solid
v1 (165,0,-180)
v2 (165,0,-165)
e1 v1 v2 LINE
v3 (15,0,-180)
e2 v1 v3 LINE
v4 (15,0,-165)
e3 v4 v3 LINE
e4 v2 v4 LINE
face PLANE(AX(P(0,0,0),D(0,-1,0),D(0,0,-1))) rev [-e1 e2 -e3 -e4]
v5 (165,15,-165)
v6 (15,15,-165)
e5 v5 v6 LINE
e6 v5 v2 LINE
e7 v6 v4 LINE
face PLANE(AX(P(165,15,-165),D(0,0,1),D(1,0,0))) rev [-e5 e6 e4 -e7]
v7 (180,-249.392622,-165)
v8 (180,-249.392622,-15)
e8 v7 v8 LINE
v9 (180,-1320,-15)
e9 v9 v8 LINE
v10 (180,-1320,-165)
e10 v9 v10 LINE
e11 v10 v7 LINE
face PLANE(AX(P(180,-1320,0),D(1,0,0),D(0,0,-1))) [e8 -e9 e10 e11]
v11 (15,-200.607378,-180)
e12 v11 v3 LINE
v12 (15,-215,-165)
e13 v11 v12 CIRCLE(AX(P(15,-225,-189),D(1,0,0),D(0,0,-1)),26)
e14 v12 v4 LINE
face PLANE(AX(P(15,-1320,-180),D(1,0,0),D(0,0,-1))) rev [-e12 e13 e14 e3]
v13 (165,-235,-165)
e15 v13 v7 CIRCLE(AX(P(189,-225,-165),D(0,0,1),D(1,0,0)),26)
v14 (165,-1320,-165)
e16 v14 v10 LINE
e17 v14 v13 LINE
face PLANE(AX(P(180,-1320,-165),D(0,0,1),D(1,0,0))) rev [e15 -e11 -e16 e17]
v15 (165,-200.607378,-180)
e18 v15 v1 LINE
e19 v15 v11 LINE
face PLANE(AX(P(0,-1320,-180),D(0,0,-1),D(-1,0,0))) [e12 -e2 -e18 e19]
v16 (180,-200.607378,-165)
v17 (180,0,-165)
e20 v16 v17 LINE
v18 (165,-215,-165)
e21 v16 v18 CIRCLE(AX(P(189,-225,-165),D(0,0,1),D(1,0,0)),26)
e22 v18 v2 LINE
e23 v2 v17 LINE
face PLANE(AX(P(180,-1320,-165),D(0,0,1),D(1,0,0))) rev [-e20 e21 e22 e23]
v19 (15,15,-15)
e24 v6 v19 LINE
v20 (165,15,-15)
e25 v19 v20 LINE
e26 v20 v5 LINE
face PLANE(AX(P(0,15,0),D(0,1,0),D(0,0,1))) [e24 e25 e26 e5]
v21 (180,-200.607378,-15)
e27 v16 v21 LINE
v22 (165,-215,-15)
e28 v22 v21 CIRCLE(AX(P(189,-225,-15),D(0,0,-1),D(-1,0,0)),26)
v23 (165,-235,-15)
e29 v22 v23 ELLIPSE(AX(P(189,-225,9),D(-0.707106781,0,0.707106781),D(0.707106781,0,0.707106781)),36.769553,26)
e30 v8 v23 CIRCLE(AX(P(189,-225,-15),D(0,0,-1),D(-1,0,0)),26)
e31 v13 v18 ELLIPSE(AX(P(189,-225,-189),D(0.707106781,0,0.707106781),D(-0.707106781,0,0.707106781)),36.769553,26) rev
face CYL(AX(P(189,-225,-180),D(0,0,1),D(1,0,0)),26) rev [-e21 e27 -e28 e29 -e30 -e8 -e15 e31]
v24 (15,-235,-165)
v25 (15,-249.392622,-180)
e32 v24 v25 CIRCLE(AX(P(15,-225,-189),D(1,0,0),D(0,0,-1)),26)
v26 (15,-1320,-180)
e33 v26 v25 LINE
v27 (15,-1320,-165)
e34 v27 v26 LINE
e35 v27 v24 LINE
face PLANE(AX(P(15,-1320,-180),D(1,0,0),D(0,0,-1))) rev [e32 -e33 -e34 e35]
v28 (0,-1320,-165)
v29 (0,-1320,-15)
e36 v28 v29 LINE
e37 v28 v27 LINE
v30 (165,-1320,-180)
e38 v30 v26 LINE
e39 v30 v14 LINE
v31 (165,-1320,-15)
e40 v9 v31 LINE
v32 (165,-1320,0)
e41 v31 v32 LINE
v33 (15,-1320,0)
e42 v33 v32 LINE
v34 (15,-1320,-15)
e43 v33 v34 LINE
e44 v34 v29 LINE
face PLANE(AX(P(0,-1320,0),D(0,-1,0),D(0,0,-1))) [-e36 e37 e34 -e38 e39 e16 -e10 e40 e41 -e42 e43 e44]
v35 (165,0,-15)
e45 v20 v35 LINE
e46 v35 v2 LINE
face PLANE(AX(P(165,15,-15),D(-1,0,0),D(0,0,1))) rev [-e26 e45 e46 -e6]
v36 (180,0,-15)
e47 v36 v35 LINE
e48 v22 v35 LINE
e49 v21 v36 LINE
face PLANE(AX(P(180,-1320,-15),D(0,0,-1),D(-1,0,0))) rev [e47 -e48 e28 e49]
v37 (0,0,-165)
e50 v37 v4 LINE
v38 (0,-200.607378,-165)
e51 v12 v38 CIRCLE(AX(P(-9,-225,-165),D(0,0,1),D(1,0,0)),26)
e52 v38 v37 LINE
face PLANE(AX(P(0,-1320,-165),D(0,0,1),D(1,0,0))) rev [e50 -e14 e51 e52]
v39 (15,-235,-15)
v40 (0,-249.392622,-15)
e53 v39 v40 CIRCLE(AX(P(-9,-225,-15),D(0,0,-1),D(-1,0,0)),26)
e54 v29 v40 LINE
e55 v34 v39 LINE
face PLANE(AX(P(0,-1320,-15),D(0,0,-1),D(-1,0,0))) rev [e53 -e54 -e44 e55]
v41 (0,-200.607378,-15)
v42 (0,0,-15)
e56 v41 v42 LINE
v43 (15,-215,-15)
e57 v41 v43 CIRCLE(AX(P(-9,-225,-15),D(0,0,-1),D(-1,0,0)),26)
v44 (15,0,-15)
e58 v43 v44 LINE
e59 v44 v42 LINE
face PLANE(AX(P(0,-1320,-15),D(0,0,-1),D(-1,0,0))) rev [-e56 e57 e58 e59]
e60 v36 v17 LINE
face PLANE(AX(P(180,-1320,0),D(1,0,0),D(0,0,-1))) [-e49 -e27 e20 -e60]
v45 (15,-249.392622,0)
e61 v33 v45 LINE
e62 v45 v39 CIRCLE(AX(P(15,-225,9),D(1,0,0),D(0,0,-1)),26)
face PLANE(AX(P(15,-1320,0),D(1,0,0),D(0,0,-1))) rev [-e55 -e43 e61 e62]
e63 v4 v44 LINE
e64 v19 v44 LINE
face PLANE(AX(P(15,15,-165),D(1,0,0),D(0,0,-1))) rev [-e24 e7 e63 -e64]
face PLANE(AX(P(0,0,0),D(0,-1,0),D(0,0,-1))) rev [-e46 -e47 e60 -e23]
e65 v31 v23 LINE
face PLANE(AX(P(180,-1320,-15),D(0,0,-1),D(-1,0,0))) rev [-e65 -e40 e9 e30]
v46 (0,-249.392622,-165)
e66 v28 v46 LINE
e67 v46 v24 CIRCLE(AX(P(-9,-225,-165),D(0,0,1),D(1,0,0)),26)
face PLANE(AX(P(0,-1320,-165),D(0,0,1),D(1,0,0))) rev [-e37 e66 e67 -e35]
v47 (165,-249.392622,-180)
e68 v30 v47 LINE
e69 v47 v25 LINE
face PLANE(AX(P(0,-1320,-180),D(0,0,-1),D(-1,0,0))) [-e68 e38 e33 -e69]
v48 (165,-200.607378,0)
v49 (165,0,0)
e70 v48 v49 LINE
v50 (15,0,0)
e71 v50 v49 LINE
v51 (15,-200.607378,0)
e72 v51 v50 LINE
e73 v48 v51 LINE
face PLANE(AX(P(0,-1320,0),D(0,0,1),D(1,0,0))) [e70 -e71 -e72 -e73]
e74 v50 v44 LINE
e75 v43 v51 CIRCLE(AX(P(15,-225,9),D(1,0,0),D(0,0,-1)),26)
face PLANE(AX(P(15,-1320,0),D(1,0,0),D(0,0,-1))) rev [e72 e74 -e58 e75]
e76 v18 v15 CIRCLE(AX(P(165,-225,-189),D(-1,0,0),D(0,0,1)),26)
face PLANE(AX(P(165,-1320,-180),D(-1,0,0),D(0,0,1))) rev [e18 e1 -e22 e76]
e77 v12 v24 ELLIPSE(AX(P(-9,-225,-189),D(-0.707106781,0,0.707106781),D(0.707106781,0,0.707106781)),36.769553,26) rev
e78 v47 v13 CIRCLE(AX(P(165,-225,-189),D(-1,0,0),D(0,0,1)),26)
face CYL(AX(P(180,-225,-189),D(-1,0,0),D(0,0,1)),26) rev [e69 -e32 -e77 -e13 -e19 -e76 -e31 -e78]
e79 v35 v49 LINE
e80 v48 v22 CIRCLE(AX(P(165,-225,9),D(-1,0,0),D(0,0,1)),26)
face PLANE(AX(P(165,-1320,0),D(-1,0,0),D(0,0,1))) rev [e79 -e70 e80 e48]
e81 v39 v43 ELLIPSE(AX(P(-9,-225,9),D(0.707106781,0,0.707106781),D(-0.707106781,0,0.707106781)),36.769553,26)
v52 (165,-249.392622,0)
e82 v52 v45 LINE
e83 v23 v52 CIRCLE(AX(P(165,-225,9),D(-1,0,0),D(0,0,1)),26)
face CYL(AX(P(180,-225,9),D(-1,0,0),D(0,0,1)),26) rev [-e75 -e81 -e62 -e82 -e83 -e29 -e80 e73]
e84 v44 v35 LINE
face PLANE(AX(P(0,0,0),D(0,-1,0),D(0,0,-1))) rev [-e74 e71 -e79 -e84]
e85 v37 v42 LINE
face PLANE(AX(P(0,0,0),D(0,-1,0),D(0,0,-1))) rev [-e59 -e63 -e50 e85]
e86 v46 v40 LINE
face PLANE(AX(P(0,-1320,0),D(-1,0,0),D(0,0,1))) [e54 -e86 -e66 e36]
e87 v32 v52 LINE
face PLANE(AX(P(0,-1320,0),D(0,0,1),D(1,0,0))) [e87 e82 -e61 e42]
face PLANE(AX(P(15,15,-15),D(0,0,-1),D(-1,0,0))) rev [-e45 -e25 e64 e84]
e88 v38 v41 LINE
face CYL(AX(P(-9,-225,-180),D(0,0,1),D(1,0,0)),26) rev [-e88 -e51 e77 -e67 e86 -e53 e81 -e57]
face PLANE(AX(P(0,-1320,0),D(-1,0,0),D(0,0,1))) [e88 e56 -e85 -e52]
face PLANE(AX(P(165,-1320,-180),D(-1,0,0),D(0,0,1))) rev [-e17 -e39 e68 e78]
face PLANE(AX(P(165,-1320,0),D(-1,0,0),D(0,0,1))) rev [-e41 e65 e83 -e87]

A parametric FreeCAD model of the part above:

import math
import FreeCAD as App
import Part
import Sketcher

V = App.Vector


def add_polygon(sketch, points):
    """Adds a closed chain of lines whose ends are joined by coincident constraints."""
    first, n = sketch.GeometryCount, len(points)
    for a, b in zip(points, points[1:] + points[:1]):
        sketch.addGeometry(Part.LineSegment(App.Vector(*a, 0), App.Vector(*b, 0)), False)
    for i in range(n):
        sketch.addConstraint(Sketcher.Constraint("Coincident", first + i, 2, first + (i + 1) % n, 1))

doc = App.newDocument("Part")
body = doc.addObject("PartDesign::Body", "Body")

# Sketch on XZ plane
sketch1 = body.newObject("Sketcher::SketchObject", "Sketch")
sketch1.AttachmentSupport = (doc.getObject("XZ_Plane"), [""])
sketch1.MapMode = "FlatFace"
add_polygon(sketch1, [(0, -180), (0, 0), (180, 0), (180, -180)])  # lines 0-3
sketch1.addConstraint(Sketcher.Constraint("Vertical", 0))
sketch1.addConstraint(Sketcher.Constraint("Horizontal", 1))
sketch1.addConstraint(Sketcher.Constraint("Vertical", 2))
sketch1.addConstraint(Sketcher.Constraint("Horizontal", 3))
sketch1.addConstraint(Sketcher.Constraint("Coincident", 0, 2, -1, 1))
sketch1.addConstraint(Sketcher.Constraint("Equal", 3, 0))
sketch1.addConstraint(Sketcher.Constraint("DistanceX", 1, 1, 1, 2, 180.0))
pad1 = body.newObject("PartDesign::Pad", "Pad")
pad1.Profile = sketch1
pad1.Length = 1320

# Sketch on XZ plane
sketch2 = body.newObject("Sketcher::SketchObject", "Sketch001")
sketch2.AttachmentSupport = (doc.getObject("XZ_Plane"), [""])
sketch2.MapMode = "FlatFace"
add_polygon(sketch2, [(0, -180), (0, -165), (15, -165), (15, -180)])  # lines 0-3
add_polygon(sketch2, [(0, -15), (0, 0), (15, 0), (15, -15)])  # lines 4-7
add_polygon(sketch2, [(165, -180), (165, -165), (180, -165), (180, -180)])  # lines 8-11
add_polygon(sketch2, [(165, -15), (165, 0), (180, 0), (180, -15)])  # lines 12-15
sketch2.addConstraint(Sketcher.Constraint("Vertical", 0))
sketch2.addConstraint(Sketcher.Constraint("Horizontal", 1))
sketch2.addConstraint(Sketcher.Constraint("Vertical", 2))
sketch2.addConstraint(Sketcher.Constraint("Horizontal", 3))
sketch2.addConstraint(Sketcher.Constraint("Vertical", 4))
sketch2.addConstraint(Sketcher.Constraint("Horizontal", 5))
sketch2.addConstraint(Sketcher.Constraint("Vertical", 6))
sketch2.addConstraint(Sketcher.Constraint("Horizontal", 7))
sketch2.addConstraint(Sketcher.Constraint("Vertical", 8))
sketch2.addConstraint(Sketcher.Constraint("Horizontal", 9))
sketch2.addConstraint(Sketcher.Constraint("Vertical", 10))
sketch2.addConstraint(Sketcher.Constraint("Horizontal", 11))
sketch2.addConstraint(Sketcher.Constraint("Vertical", 12))
sketch2.addConstraint(Sketcher.Constraint("Horizontal", 13))
sketch2.addConstraint(Sketcher.Constraint("Vertical", 14))
sketch2.addConstraint(Sketcher.Constraint("Horizontal", 15))
sketch2.addConstraint(Sketcher.Constraint("Coincident", 4, 2, -1, 1))
sketch2.addConstraint(Sketcher.Constraint("PointOnObject", 0, 2, -2))
sketch2.addConstraint(Sketcher.Constraint("PointOnObject", 12, 2, -1))
sketch2.addConstraint(Sketcher.Constraint("Horizontal", 1, 2, 8, 2))
sketch2.addConstraint(Sketcher.Constraint("Horizontal", 3, 2, 10, 2))
sketch2.addConstraint(Sketcher.Constraint("Horizontal", 7, 2, 14, 2))
sketch2.addConstraint(Sketcher.Constraint("Vertical", 2, 2, 5, 2))
sketch2.addConstraint(Sketcher.Constraint("Vertical", 11, 2, 12, 2))
sketch2.addConstraint(Sketcher.Constraint("Vertical", 10, 2, 13, 2))
sketch2.addConstraint(Sketcher.Constraint("Equal", 7, 9))
sketch2.addConstraint(Sketcher.Constraint("Equal", 15, 0))
sketch2.addConstraint(Sketcher.Constraint("Equal", 2, 4))
sketch2.addConstraint(Sketcher.Constraint("DistanceX", 1, 1, 1, 2, 15.0))
sketch2.addConstraint(Sketcher.Constraint("DistanceY", 0, 2, -1, 1, 165.0))
sketch2.addConstraint(Sketcher.Constraint("DistanceX", -1, 1, 8, 2, 165.0))
pocket1 = body.newObject("PartDesign::Pocket", "Pocket")
pocket1.Profile = sketch2
pocket1.Length = 1320
pocket1.Reversed = True

# Sketch on XY plane
sketch3 = body.newObject("Sketcher::SketchObject", "Sketch002")
sketch3.AttachmentSupport = (doc.getObject("XY_Plane"), [""])
sketch3.MapMode = "FlatFace"
sketch3.addGeometry(Part.LineSegment(V(0, -201, 0), V(0, -249, 0)), False)
sketch3.addGeometry(Part.ArcOfCircle(Part.Circle(V(-9, -225, 0), V(0, 0, 1), 26), math.radians(-70), math.radians(70)), False)
sketch3.addGeometry(Part.LineSegment(V(180, -249, 0), V(180, -201, 0)), False)
sketch3.addGeometry(Part.ArcOfCircle(Part.Circle(V(189, -225, 0), V(0, 0, 1), 26), math.radians(110), math.radians(250)), False)
sketch3.addConstraint(Sketcher.Constraint("Coincident", 0, 1, 1, 2))
sketch3.addConstraint(Sketcher.Constraint("Coincident", 1, 1, 0, 2))
sketch3.addConstraint(Sketcher.Constraint("Coincident", 2, 1, 3, 2))
sketch3.addConstraint(Sketcher.Constraint("Coincident", 3, 1, 2, 2))
sketch3.addConstraint(Sketcher.Constraint("Vertical", 0))
sketch3.addConstraint(Sketcher.Constraint("Vertical", 2))
sketch3.addConstraint(Sketcher.Constraint("Equal", 1, 3))
sketch3.addConstraint(Sketcher.Constraint("PointOnObject", 0, 1, -2))
sketch3.addConstraint(Sketcher.Constraint("Horizontal", 1, 3, 3, 3))
sketch3.addConstraint(Sketcher.Constraint("Horizontal", 1, 1, 2, 1))
sketch3.addConstraint(Sketcher.Constraint("Radius", 1, 26.0))
sketch3.addConstraint(Sketcher.Constraint("DistanceX", 1, 3, -1, 1, 9.0))
sketch3.addConstraint(Sketcher.Constraint("DistanceY", 1, 3, -1, 1, 225.0))
sketch3.addConstraint(Sketcher.Constraint("DistanceX", -1, 1, 3, 3, 189.0))
pocket2 = body.newObject("PartDesign::Pocket", "Pocket001")
pocket2.Profile = sketch3
pocket2.Type = "ThroughAll"
pocket2.Midplane = True

# Sketch on YZ plane
sketch4 = body.newObject("Sketcher::SketchObject", "Sketch003")
sketch4.AttachmentSupport = (doc.getObject("YZ_Plane"), [""])
sketch4.MapMode = "FlatFace"
sketch4.addGeometry(Part.LineSegment(V(-201, -180, 0), V(-249, -180, 0)), False)
sketch4.addGeometry(Part.ArcOfCircle(Part.Circle(V(-225, -189, 0), V(0, 0, 1), 26), math.radians(20), math.radians(160)), False)
sketch4.addGeometry(Part.LineSegment(V(-249, 0, 0), V(-201, 0, 0)), False)
sketch4.addGeometry(Part.ArcOfCircle(Part.Circle(V(-225, 9, 0), V(0, 0, 1), 26), math.radians(-160), math.radians(-20)), False)
sketch4.addConstraint(Sketcher.Constraint("Coincident", 0, 1, 1, 1))
sketch4.addConstraint(Sketcher.Constraint("Coincident", 1, 2, 0, 2))
sketch4.addConstraint(Sketcher.Constraint("Coincident", 2, 1, 3, 1))
sketch4.addConstraint(Sketcher.Constraint("Coincident", 3, 2, 2, 2))
sketch4.addConstraint(Sketcher.Constraint("Horizontal", 0))
sketch4.addConstraint(Sketcher.Constraint("Horizontal", 2))
sketch4.addConstraint(Sketcher.Constraint("Equal", 1, 3))
sketch4.addConstraint(Sketcher.Constraint("PointOnObject", 2, 1, -1))
sketch4.addConstraint(Sketcher.Constraint("Vertical", 1, 3, 3, 3))
sketch4.addConstraint(Sketcher.Constraint("Vertical", 1, 2, 2, 1))
sketch4.addConstraint(Sketcher.Constraint("Radius", 1, 26.0))
sketch4.addConstraint(Sketcher.Constraint("DistanceX", 1, 3, -1, 1, 225.0))
sketch4.addConstraint(Sketcher.Constraint("DistanceY", 1, 3, -1, 1, 189.0))
sketch4.addConstraint(Sketcher.Constraint("DistanceY", -1, 1, 3, 3, 9.0))
pocket3 = body.newObject("PartDesign::Pocket", "Pocket002")
pocket3.Profile = sketch4
pocket3.Type = "ThroughAll"
pocket3.Reversed = True

# Sketch on XZ plane
sketch5 = body.newObject("Sketcher::SketchObject", "Sketch004")
sketch5.AttachmentSupport = (doc.getObject("XZ_Plane"), [""])
sketch5.MapMode = "FlatFace"
add_polygon(sketch5, [(15, -165), (15, -15), (165, -15), (165, -165)])  # lines 0-3
sketch5.addConstraint(Sketcher.Constraint("Vertical", 0))
sketch5.addConstraint(Sketcher.Constraint("Horizontal", 1))
sketch5.addConstraint(Sketcher.Constraint("Vertical", 2))
sketch5.addConstraint(Sketcher.Constraint("Horizontal", 3))
sketch5.addConstraint(Sketcher.Constraint("Equal", 3, 0))
sketch5.addConstraint(Sketcher.Constraint("DistanceX", 1, 1, 1, 2, 150.0))
sketch5.addConstraint(Sketcher.Constraint("DistanceX", -1, 1, 0, 2, 15.0))
sketch5.addConstraint(Sketcher.Constraint("DistanceY", 0, 2, -1, 1, 15.0))
pad2 = body.newObject("PartDesign::Pad", "Pad001")
pad2.Profile = sketch5
pad2.Length = 15
pad2.Reversed = True

doc.recompute()
